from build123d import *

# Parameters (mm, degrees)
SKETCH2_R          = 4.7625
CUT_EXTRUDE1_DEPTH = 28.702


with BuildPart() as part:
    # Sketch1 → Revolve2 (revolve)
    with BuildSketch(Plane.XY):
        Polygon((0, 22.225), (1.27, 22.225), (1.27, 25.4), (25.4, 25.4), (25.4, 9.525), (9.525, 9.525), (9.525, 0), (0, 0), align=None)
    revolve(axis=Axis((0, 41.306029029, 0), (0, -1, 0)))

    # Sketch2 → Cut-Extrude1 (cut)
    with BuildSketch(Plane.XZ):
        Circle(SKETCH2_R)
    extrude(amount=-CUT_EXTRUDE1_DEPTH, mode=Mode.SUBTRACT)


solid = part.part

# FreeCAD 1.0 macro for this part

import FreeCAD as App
import Part
import Sketcher

V = App.Vector
Q = App.Units.Quantity


def add_polygon(sketch, points):
    """Adds a closed chain of lines whose ends are joined by coincident constraints."""
    first, n = sketch.GeometryCount, len(points)
    for a, b in zip(points, points[1:] + points[:1]):
        sketch.addGeometry(Part.LineSegment(App.Vector(*a, 0), App.Vector(*b, 0)), False)
    for i in range(n):
        sketch.addConstraint(Sketcher.Constraint("Coincident", first + i, 2, first + (i + 1) % n, 1))

doc = App.newDocument("Part")
body = doc.addObject("PartDesign::Body", "Body")

# Sketch on XY plane
sketch1 = body.newObject("Sketcher::SketchObject", "Sketch")
sketch1.AttachmentSupport = (doc.getObject("XY_Plane"), [""])
sketch1.MapMode = "FlatFace"
add_polygon(sketch1, [(1.27, 22.225), (0, 22.225), (0, 0), (9.525, 0), (9.525, 9.525), (25.4, 9.525), (25.4, 25.4), (1.27, 25.4)])  # lines 0-7
sketch1.addConstraint([
    Sketcher.Constraint("Horizontal", 0),
    Sketcher.Constraint("Vertical", 1),
    Sketcher.Constraint("Horizontal", 2),
    Sketcher.Constraint("Vertical", 3),
    Sketcher.Constraint("Horizontal", 4),
    Sketcher.Constraint("Vertical", 5),
    Sketcher.Constraint("Horizontal", 6),
    Sketcher.Constraint("Vertical", 7),
    Sketcher.Constraint("Coincident", 1, 2, -1, 1),
    Sketcher.Constraint("Equal", 2, 3),
    Sketcher.Constraint("Equal", 4, 5),
    Sketcher.Constraint("DistanceX", -1, 1, 4, 2, Q("1 in")),
    Sketcher.Constraint("DistanceX", 0, 2, 0, 1, Q("0.05 in")),
    Sketcher.Constraint("DistanceY", 3, 2, 0, 2, Q("0.5 in")),
    Sketcher.Constraint("DistanceX", 2, 1, 2, 2, Q("0.375 in")),
])
revolution = body.newObject("PartDesign::Revolution", "Revolution")
revolution.Profile = sketch1
revolution.ReferenceAxis = (sketch1, ["V_Axis"])
revolution.Angle = 360

# Sketch on XZ plane
sketch2 = body.newObject("Sketcher::SketchObject", "Sketch001")
sketch2.AttachmentSupport = (doc.getObject("XZ_Plane"), [""])
sketch2.MapMode = "FlatFace"
sketch2.addGeometry(Part.Circle(V(0, 0, 0), V(0, 0, 1), 4.7625), False)
sketch2.addConstraint([
    Sketcher.Constraint("Coincident", 0, 3, -1, 1),
    Sketcher.Constraint("Diameter", 0, Q("0.375 in")),
])
pocket1 = body.newObject("PartDesign::Pocket", "Pocket")
pocket1.Profile = sketch2
pocket1.Length = Q("1.13 in")

doc.recompute()
